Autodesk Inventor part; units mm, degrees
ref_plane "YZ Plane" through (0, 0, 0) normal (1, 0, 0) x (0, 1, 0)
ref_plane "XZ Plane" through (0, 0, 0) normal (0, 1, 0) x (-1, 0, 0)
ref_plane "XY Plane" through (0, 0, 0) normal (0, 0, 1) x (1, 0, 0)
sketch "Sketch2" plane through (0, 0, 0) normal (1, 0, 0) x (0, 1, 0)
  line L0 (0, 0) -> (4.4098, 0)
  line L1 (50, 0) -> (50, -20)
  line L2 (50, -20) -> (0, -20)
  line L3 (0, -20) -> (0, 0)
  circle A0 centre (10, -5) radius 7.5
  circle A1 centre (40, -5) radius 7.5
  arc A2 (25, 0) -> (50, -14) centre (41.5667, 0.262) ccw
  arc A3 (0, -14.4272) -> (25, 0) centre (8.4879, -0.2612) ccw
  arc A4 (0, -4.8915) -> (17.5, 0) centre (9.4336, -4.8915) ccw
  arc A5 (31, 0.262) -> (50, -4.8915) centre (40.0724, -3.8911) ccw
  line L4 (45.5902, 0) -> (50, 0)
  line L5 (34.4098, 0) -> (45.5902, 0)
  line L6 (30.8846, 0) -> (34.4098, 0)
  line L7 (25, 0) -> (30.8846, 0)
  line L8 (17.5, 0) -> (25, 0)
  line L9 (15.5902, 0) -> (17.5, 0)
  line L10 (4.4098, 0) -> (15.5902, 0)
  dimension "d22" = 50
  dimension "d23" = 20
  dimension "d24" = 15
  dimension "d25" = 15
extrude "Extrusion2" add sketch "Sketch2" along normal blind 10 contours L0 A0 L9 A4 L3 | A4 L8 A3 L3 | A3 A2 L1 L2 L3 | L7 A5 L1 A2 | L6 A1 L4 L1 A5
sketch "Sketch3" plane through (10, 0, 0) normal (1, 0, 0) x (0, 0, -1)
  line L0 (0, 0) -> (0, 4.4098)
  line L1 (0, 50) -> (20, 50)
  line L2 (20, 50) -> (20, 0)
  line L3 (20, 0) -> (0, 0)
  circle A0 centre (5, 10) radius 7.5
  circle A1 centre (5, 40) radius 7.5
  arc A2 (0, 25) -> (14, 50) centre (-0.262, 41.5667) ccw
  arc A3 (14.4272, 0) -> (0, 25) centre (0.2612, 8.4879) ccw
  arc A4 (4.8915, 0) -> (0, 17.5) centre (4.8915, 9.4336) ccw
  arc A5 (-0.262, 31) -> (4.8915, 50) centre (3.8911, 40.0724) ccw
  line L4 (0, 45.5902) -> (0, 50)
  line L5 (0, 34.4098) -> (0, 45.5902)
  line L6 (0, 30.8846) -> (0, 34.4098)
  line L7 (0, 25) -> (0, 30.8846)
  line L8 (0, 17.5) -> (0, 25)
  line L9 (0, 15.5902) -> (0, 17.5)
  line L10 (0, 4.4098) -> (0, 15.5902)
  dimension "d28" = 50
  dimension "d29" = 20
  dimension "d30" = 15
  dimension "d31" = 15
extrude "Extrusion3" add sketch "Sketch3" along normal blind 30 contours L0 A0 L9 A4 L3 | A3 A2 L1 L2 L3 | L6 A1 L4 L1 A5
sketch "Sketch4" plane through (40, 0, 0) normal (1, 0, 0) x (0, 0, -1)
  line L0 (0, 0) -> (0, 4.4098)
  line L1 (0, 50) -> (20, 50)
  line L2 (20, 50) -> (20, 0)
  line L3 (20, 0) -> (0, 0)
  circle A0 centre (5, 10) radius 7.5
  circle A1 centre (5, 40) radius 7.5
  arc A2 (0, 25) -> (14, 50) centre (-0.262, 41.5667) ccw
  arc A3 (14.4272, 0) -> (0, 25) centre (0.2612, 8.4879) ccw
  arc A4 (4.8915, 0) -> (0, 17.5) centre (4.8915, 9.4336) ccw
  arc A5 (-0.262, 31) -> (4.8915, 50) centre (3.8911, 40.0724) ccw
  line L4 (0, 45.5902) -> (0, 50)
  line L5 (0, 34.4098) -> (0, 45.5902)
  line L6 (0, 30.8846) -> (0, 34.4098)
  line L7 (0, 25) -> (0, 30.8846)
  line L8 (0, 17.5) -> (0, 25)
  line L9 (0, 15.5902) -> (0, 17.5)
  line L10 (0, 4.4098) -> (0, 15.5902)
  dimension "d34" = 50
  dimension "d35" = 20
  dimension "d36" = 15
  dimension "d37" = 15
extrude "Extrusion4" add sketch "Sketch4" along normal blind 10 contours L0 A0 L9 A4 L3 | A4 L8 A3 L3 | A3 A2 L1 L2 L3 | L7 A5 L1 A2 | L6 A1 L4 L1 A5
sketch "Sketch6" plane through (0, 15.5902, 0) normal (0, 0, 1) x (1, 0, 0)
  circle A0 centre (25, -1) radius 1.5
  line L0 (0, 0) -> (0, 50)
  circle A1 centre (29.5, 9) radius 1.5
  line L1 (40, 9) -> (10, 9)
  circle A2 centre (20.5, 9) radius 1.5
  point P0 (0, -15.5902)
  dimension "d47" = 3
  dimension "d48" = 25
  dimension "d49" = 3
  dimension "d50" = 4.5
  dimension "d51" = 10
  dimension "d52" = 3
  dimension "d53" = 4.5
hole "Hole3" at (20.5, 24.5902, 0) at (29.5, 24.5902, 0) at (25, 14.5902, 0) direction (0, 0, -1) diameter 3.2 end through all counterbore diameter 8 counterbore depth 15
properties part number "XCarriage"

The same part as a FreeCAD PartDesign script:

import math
import FreeCAD as App
import Part
import Sketcher

V = App.Vector
Q = App.Units.Quantity

doc = App.newDocument("Part")
body = doc.addObject("PartDesign::Body", "Body")

# Sketch on YZ plane
sketch1 = doc.addObject("Sketcher::SketchObject", "Sketch")
body.addObject(sketch1)
sketch1.AttachmentSupport = (doc.YZ_Plane, [""])
sketch1.MapMode = "FlatFace"
sketch1.addGeometry([
    Part.LineSegment(V(4.4, 0, 0), V(0, 0, 0)),  # 0
    Part.LineSegment(V(0, 0, 0), V(0, -20, 0)),  # 1
    Part.LineSegment(V(0, -20, 0), V(50, -20, 0)),  # 2
    Part.LineSegment(V(50, -20, 0), V(50, 0, 0)),  # 3
    Part.LineSegment(V(50, 0, 0), V(45.6, 0, 0)),  # 4
    Part.ArcOfCircle(Part.Circle(V(40, -5, 0), V(0, 0, 1), 7.5), math.radians(138), math.radians(402)),  # 5
    Part.LineSegment(V(34.4, 0, 0), V(15.6, 0, 0)),  # 6
    Part.ArcOfCircle(Part.Circle(V(10, -5, 0), V(0, 0, 1), 7.5), math.radians(138), math.radians(402)),  # 7
], False)
sketch1.addConstraint([
    Sketcher.Constraint("Coincident", 0, 2, 1, 1),
    Sketcher.Constraint("Coincident", 1, 2, 2, 1),
    Sketcher.Constraint("Coincident", 2, 2, 3, 1),
    Sketcher.Constraint("Coincident", 3, 2, 4, 1),
    Sketcher.Constraint("Coincident", 4, 2, 5, 2),
    Sketcher.Constraint("Coincident", 5, 1, 6, 1),
    Sketcher.Constraint("Coincident", 6, 2, 7, 2),
    Sketcher.Constraint("Coincident", 7, 1, 0, 1),
    Sketcher.Constraint("Horizontal", 0),
    Sketcher.Constraint("Vertical", 1),
    Sketcher.Constraint("Horizontal", 2),
    Sketcher.Constraint("Vertical", 3),
    Sketcher.Constraint("Horizontal", 4),
    Sketcher.Constraint("Horizontal", 6),
    Sketcher.Constraint("Coincident", 0, 2, -1, 1),
    Sketcher.Constraint("Equal", 5, 7),
    Sketcher.Constraint("PointOnObject", 3, 2, -1),
    Sketcher.Constraint("PointOnObject", 5, 1, -1),
    Sketcher.Constraint("Horizontal", 5, 3, 7, 3),
    Sketcher.Constraint("Equal", 0, 4),
    Sketcher.Constraint("Radius", 5, Q("7.5 mm")),
    Sketcher.Constraint("DistanceX", 2, 1, 2, 2, Q("50 mm")),
    Sketcher.Constraint("DistanceY", 1, 2, 1, 1, Q("20 mm")),
    Sketcher.Constraint("DistanceY", 1, 2, 7, 3, Q("15 mm")),
    Sketcher.Constraint("DistanceX", -1, 1, 5, 3, Q("40 mm")),
])
pad1 = doc.addObject("PartDesign::Pad", "Pad")
body.addObject(pad1)
pad1.Profile = sketch1
pad1.Length = 10

# Sketch on YZ plane
sketch2 = doc.addObject("Sketcher::SketchObject", "Sketch001")
body.addObject(sketch2)
sketch2.AttachmentSupport = (doc.YZ_Plane, [""])
sketch2.MapMode = "FlatFace"
sketch2.AttachmentOffset = App.Placement(V(0, 0, 10), App.Rotation())
sketch2.addGeometry([
    Part.LineSegment(V(4.4, 0, 0), V(0, 0, 0)),  # 0
    Part.LineSegment(V(0, 0, 0), V(0, -4.9, 0)),  # 1
    Part.ArcOfCircle(Part.Circle(V(9.4, -4.9, 0), V(0, 0, 1), 9.4), math.radians(180), math.radians(391)),  # 2
    Part.LineSegment(V(17.5, 0, 0), V(15.6, 0, 0)),  # 3
    Part.ArcOfCircle(Part.Circle(V(10, -5, 0), V(0, 0, 1), 7.5), math.radians(138), math.radians(402)),  # 4
    Part.ArcOfCircle(Part.Circle(V(8.5, -0.3, 0), V(0, 0, 1), 16.5), math.radians(-121), math.radians(1)),  # 5
    Part.LineSegment(V(0, -14.4, 0), V(0, -20, 0)),  # 6
    Part.LineSegment(V(0, -20, 0), V(50, -20, 0)),  # 7
    Part.LineSegment(V(50, -20, 0), V(50, -14, 0)),  # 8
    Part.ArcOfCircle(Part.Circle(V(41.6, 0.3, 0), V(0, 0, 1), 16.6), math.radians(-179), math.radians(-59)),  # 9
    Part.LineSegment(V(34.4, 0, 0), V(30.9, 0, 0)),  # 10
    Part.ArcOfCircle(Part.Circle(V(40.1, -3.9, 0), V(0, 0, 1), 10), math.radians(157), math.radians(354)),  # 11
    Part.LineSegment(V(50, -4.9, 0), V(50, 0, 0)),  # 12
    Part.LineSegment(V(50, 0, 0), V(45.6, 0, 0)),  # 13
    Part.ArcOfCircle(Part.Circle(V(40, -5, 0), V(0, 0, 1), 7.5), math.radians(138), math.radians(402)),  # 14
], False)
sketch2.addConstraint([
    Sketcher.Constraint("Coincident", 0, 2, 1, 1),
    Sketcher.Constraint("Tangent", 1, 2, 2, 1),
    Sketcher.Constraint("Coincident", 2, 2, 3, 1),
    Sketcher.Constraint("Coincident", 3, 2, 4, 2),
    Sketcher.Constraint("Coincident", 4, 1, 0, 1),
    Sketcher.Constraint("Coincident", 5, 1, 6, 1),
    Sketcher.Constraint("Coincident", 6, 2, 7, 1),
    Sketcher.Constraint("Coincident", 7, 2, 8, 1),
    Sketcher.Constraint("Coincident", 8, 2, 9, 2),
    Sketcher.Constraint("Tangent", 9, 1, 5, 2),
    Sketcher.Constraint("Coincident", 10, 2, 11, 1),
    Sketcher.Constraint("Coincident", 11, 2, 12, 1),
    Sketcher.Constraint("Coincident", 12, 2, 13, 1),
    Sketcher.Constraint("Coincident", 13, 2, 14, 2),
    Sketcher.Constraint("Coincident", 14, 1, 10, 1),
    Sketcher.Constraint("Horizontal", 0),
    Sketcher.Constraint("Vertical", 1),
    Sketcher.Constraint("Horizontal", 3),
    Sketcher.Constraint("Vertical", 6),
    Sketcher.Constraint("Horizontal", 7),
    Sketcher.Constraint("Vertical", 8),
    Sketcher.Constraint("Horizontal", 10),
    Sketcher.Constraint("Vertical", 12),
    Sketcher.Constraint("Horizontal", 13),
    Sketcher.Constraint("Coincident", 0, 2, -1, 1),
    Sketcher.Constraint("Equal", 4, 14),
    Sketcher.Constraint("PointOnObject", 2, 2, -1),
    Sketcher.Constraint("PointOnObject", 5, 1, -2),
    Sketcher.Constraint("PointOnObject", 9, 1, -1),
    Sketcher.Constraint("PointOnObject", 10, 2, -1),
    Sketcher.Constraint("PointOnObject", 12, 2, -1),
    Sketcher.Constraint("Horizontal", 4, 3, 14, 3),
    Sketcher.Constraint("Horizontal", 1, 2, 11, 2),
    Sketcher.Constraint("Vertical", 8, 2, 11, 2),
    Sketcher.Constraint("Equal", 0, 13),
    Sketcher.Constraint("Radius", 4, Q("7.5 mm")),
    Sketcher.Constraint("DistanceX", 7, 1, 7, 2, Q("50 mm")),
    Sketcher.Constraint("DistanceY", 6, 2, -1, 1, Q("20 mm")),
    Sketcher.Constraint("DistanceY", 6, 2, 4, 3, Q("15 mm")),
    Sketcher.Constraint("DistanceX", 4, 3, 9, 1, Q("15 mm")),
    Sketcher.Constraint("DistanceX", 9, 1, 14, 3, Q("15 mm")),
    Sketcher.Constraint("DistanceY", 8, 1, 8, 2, Q("6 mm")),
    Sketcher.Constraint("DistanceX", -1, 1, 2, 2, Q("17.5 mm")),
    Sketcher.Constraint("Radius", 2, Q("9.4336 mm")),
    Sketcher.Constraint("Radius", 5, Q("16.5142 mm")),
    Sketcher.Constraint("Radius", 9, Q("16.5688 mm")),
    Sketcher.Constraint("Radius", 11, Q("9.9778 mm")),
    Sketcher.Constraint("DistanceY", 11, 3, 5, 3, Q("3.63 mm")),
])
pad2 = doc.addObject("PartDesign::Pad", "Pad001")
body.addObject(pad2)
pad2.Profile = sketch2
pad2.Length = 30

# Sketch on YZ plane
sketch3 = doc.addObject("Sketcher::SketchObject", "Sketch002")
body.addObject(sketch3)
sketch3.AttachmentSupport = (doc.YZ_Plane, [""])
sketch3.MapMode = "FlatFace"
sketch3.AttachmentOffset = App.Placement(V(0, 0, 40), App.Rotation())
sketch3.addGeometry([
    Part.LineSegment(V(4.4, 0, 0), V(0, 0, 0)),  # 0
    Part.LineSegment(V(0, 0, 0), V(0, -20, 0)),  # 1
    Part.LineSegment(V(0, -20, 0), V(50, -20, 0)),  # 2
    Part.LineSegment(V(50, -20, 0), V(50, 0, 0)),  # 3
    Part.LineSegment(V(50, 0, 0), V(45.6, 0, 0)),  # 4
    Part.ArcOfCircle(Part.Circle(V(40, -5, 0), V(0, 0, 1), 7.5), math.radians(138), math.radians(402)),  # 5
    Part.LineSegment(V(34.4, 0, 0), V(15.6, 0, 0)),  # 6
    Part.ArcOfCircle(Part.Circle(V(10, -5, 0), V(0, 0, 1), 7.5), math.radians(138), math.radians(402)),  # 7
], False)
sketch3.addConstraint([
    Sketcher.Constraint("Coincident", 0, 2, 1, 1),
    Sketcher.Constraint("Coincident", 1, 2, 2, 1),
    Sketcher.Constraint("Coincident", 2, 2, 3, 1),
    Sketcher.Constraint("Coincident", 3, 2, 4, 1),
    Sketcher.Constraint("Coincident", 4, 2, 5, 2),
    Sketcher.Constraint("Coincident", 5, 1, 6, 1),
    Sketcher.Constraint("Coincident", 6, 2, 7, 2),
    Sketcher.Constraint("Coincident", 7, 1, 0, 1),
    Sketcher.Constraint("Horizontal", 0),
    Sketcher.Constraint("Vertical", 1),
    Sketcher.Constraint("Horizontal", 2),
    Sketcher.Constraint("Vertical", 3),
    Sketcher.Constraint("Horizontal", 4),
    Sketcher.Constraint("Horizontal", 6),
    Sketcher.Constraint("Coincident", 0, 2, -1, 1),
    Sketcher.Constraint("Equal", 5, 7),
    Sketcher.Constraint("PointOnObject", 3, 2, -1),
    Sketcher.Constraint("PointOnObject", 5, 1, -1),
    Sketcher.Constraint("Horizontal", 5, 3, 7, 3),
    Sketcher.Constraint("Equal", 0, 4),
    Sketcher.Constraint("Radius", 5, Q("7.5 mm")),
    Sketcher.Constraint("DistanceX", 2, 1, 2, 2, Q("50 mm")),
    Sketcher.Constraint("DistanceY", 1, 2, 1, 1, Q("20 mm")),
    Sketcher.Constraint("DistanceY", 1, 2, 7, 3, Q("15 mm")),
    Sketcher.Constraint("DistanceX", -1, 1, 5, 3, Q("40 mm")),
])
pad3 = doc.addObject("PartDesign::Pad", "Pad002")
body.addObject(pad3)
pad3.Profile = sketch3
pad3.Length = 10

# Sketch on XY plane
sketch4 = doc.addObject("Sketcher::SketchObject", "Sketch003")
body.addObject(sketch4)
sketch4.AttachmentSupport = (doc.XY_Plane, [""])
sketch4.MapMode = "FlatFace"
sketch4.addGeometry([
    Part.Circle(V(20.5, 24.6, 0), V(0, 0, 1), 1.6),
    Part.Circle(V(29.5, 24.6, 0), V(0, 0, 1), 1.6),
    Part.Circle(V(25, 14.6, 0), V(0, 0, 1), 1.6),
], False)
sketch4.addConstraint([
    Sketcher.Constraint("Equal", 0, 1),
    Sketcher.Constraint("Equal", 1, 2),
    Sketcher.Constraint("Horizontal", 0, 3, 1, 3),
    Sketcher.Constraint("Diameter", 0, Q("3.2 mm")),
    Sketcher.Constraint("DistanceX", -1, 1, 2, 3, Q("25 mm")),
    Sketcher.Constraint("DistanceX", 0, 3, 1, 3, Q("9 mm")),
    Sketcher.Constraint("DistanceY", 2, 3, 0, 3, Q("10 mm")),
    Sketcher.Constraint("DistanceX", -1, 1, 0, 3, Q("20.5 mm")),
    Sketcher.Constraint("DistanceY", -1, 1, 0, 3, Q("24.5902 mm")),
])
doc.recompute()
hole = doc.addObject("PartDesign::Hole", "Hole")
body.addObject(hole)
hole.Profile = sketch4
hole.ThreadType = "None"
hole.Diameter = 3.2
hole.DepthType = "ThroughAll"
hole.HoleCutType = "Counterbore"
hole.HoleCutDiameter = 8
hole.HoleCutDepth = 15

doc.recompute()
